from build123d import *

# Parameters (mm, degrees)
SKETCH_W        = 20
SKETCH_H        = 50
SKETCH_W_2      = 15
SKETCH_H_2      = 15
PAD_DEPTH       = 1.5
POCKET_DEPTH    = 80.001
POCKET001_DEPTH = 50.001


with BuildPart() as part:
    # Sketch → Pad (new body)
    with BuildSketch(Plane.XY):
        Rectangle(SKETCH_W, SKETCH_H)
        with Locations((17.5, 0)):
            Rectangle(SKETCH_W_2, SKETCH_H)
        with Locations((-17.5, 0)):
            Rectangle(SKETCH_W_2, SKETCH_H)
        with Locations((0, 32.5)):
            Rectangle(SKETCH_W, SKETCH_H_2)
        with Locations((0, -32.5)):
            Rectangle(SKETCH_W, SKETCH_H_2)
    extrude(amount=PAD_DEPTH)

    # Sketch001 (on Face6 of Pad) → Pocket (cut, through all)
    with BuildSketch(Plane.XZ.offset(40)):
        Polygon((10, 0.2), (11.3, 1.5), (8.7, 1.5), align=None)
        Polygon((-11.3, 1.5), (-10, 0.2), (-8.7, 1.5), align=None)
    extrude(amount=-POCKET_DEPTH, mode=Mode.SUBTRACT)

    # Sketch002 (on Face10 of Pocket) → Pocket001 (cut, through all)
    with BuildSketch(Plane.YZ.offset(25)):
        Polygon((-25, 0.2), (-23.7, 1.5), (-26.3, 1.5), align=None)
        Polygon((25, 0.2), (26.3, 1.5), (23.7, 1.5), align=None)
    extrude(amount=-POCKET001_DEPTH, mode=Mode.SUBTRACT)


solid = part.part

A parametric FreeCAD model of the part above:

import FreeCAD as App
import Part
import Sketcher
Q = App.Units.Quantity


def add_polygon(sketch, points):
    """Adds a closed chain of lines whose ends are joined by coincident constraints."""
    first, n = sketch.GeometryCount, len(points)
    for a, b in zip(points, points[1:] + points[:1]):
        sketch.addGeometry(Part.LineSegment(App.Vector(*a, 0), App.Vector(*b, 0)), False)
    for i in range(n):
        sketch.addConstraint(Sketcher.Constraint("Coincident", first + i, 2, first + (i + 1) % n, 1))

doc = App.newDocument("Part")
body = doc.addObject("PartDesign::Body", "Body")

# Sketch on XY plane
sketch1 = body.newObject("Sketcher::SketchObject", "Sketch")
sketch1.AttachmentSupport = (doc.getObject("XY_Plane"), [""])
sketch1.MapMode = "FlatFace"
add_polygon(sketch1, [(25, -25), (25, 25), (10, 25), (10, 40), (-10, 40), (-10, 25), (-25, 25), (-25, -25), (-10, -25), (-10, -40), (10, -40), (10, -25)])  # lines 0-11
sketch1.addConstraint([
    Sketcher.Constraint("Vertical", 0),
    Sketcher.Constraint("Horizontal", 1),
    Sketcher.Constraint("Vertical", 2),
    Sketcher.Constraint("Horizontal", 3),
    Sketcher.Constraint("Vertical", 4),
    Sketcher.Constraint("Horizontal", 5),
    Sketcher.Constraint("Vertical", 6),
    Sketcher.Constraint("Horizontal", 7),
    Sketcher.Constraint("Vertical", 8),
    Sketcher.Constraint("Horizontal", 9),
    Sketcher.Constraint("Vertical", 10),
    Sketcher.Constraint("Horizontal", 11),
    Sketcher.Constraint("Symmetric", 0, 2, 6, 2, -1, 1),
    Sketcher.Constraint("Symmetric", 2, 2, 8, 2, -1, 1),
    Sketcher.Constraint("Symmetric", 4, 2, 10, 2, -1, 1),
    Sketcher.Constraint("Symmetric", 1, 2, 4, 2, -2),
    Sketcher.Constraint("Equal", 11, 2),
    Sketcher.Constraint("DistanceX", 1, 2, 1, 1, Q("15 mm")),
    Sketcher.Constraint("DistanceX", 3, 2, 3, 1, Q("20 mm")),
    Sketcher.Constraint("DistanceY", 0, 1, 0, 2, Q("50 mm")),
])
pad1 = body.newObject("PartDesign::Pad", "Pad")
pad1.Profile = sketch1
pad1.Length = 1.5

# Sketch on XZ plane
sketch2 = body.newObject("Sketcher::SketchObject", "Sketch001")
sketch2.AttachmentSupport = (doc.getObject("XZ_Plane"), [""])
sketch2.MapMode = "FlatFace"
sketch2.AttachmentOffset = App.Placement(App.Vector(0, 0, 40), App.Rotation())
add_polygon(sketch2, [(10, 0.2), (11.3, 1.5), (8.7, 1.5)])  # lines 0-2
add_polygon(sketch2, [(-11.3, 1.5), (-10, 0.2), (-8.7, 1.5)])  # lines 3-5
sketch2.addConstraint([
    Sketcher.Constraint("Horizontal", 1),
    Sketcher.Constraint("Horizontal", 5),
    Sketcher.Constraint("Symmetric", 2, 2, 3, 2, -2),
    Sketcher.Constraint("Symmetric", 1, 2, 4, 2, -2),
    Sketcher.Constraint("Perpendicular", 0, 2),
    Sketcher.Constraint("Parallel", 2, 3),
    Sketcher.Constraint("Perpendicular", 3, 4),
    Sketcher.Constraint("DistanceX", 1, 2, 1, 1, Q("2.6 mm")),
    Sketcher.Constraint("DistanceX", -1, 1, 2, 2, Q("10 mm")),
    Sketcher.Constraint("DistanceY", -1, 1, 0, 2, Q("1.5 mm")),
])
pocket1 = body.newObject("PartDesign::Pocket", "Pocket")
pocket1.Profile = sketch2
pocket1.Type = "ThroughAll"

# Sketch on YZ plane
sketch3 = body.newObject("Sketcher::SketchObject", "Sketch002")
sketch3.AttachmentSupport = (doc.getObject("YZ_Plane"), [""])
sketch3.MapMode = "FlatFace"
sketch3.AttachmentOffset = App.Placement(App.Vector(0, 0, 25), App.Rotation())
add_polygon(sketch3, [(-25, 0.2), (-23.7, 1.5), (-26.3, 1.5)])  # lines 0-2
add_polygon(sketch3, [(25, 0.2), (26.3, 1.5), (23.7, 1.5)])  # lines 3-5
sketch3.addConstraint([
    Sketcher.Constraint("Horizontal", 1),
    Sketcher.Constraint("Horizontal", 4),
    Sketcher.Constraint("Symmetric", 1, 2, 3, 2, -2),
    Sketcher.Constraint("Symmetric", 2, 2, 5, 2, -2),
    Sketcher.Constraint("Perpendicular", 0, 2),
    Sketcher.Constraint("Perpendicular", 2, 3),
    Sketcher.Constraint("Perpendicular", 3, 5),
    Sketcher.Constraint("DistanceX", 1, 2, 1, 1, Q("2.6 mm")),
    Sketcher.Constraint("DistanceX", 2, 2, -1, 1, Q("25 mm")),
    Sketcher.Constraint("DistanceY", -1, 1, 0, 2, Q("1.5 mm")),
])
pocket2 = body.newObject("PartDesign::Pocket", "Pocket001")
pocket2.Profile = sketch3
pocket2.Type = "ThroughAll"

doc.recompute()
